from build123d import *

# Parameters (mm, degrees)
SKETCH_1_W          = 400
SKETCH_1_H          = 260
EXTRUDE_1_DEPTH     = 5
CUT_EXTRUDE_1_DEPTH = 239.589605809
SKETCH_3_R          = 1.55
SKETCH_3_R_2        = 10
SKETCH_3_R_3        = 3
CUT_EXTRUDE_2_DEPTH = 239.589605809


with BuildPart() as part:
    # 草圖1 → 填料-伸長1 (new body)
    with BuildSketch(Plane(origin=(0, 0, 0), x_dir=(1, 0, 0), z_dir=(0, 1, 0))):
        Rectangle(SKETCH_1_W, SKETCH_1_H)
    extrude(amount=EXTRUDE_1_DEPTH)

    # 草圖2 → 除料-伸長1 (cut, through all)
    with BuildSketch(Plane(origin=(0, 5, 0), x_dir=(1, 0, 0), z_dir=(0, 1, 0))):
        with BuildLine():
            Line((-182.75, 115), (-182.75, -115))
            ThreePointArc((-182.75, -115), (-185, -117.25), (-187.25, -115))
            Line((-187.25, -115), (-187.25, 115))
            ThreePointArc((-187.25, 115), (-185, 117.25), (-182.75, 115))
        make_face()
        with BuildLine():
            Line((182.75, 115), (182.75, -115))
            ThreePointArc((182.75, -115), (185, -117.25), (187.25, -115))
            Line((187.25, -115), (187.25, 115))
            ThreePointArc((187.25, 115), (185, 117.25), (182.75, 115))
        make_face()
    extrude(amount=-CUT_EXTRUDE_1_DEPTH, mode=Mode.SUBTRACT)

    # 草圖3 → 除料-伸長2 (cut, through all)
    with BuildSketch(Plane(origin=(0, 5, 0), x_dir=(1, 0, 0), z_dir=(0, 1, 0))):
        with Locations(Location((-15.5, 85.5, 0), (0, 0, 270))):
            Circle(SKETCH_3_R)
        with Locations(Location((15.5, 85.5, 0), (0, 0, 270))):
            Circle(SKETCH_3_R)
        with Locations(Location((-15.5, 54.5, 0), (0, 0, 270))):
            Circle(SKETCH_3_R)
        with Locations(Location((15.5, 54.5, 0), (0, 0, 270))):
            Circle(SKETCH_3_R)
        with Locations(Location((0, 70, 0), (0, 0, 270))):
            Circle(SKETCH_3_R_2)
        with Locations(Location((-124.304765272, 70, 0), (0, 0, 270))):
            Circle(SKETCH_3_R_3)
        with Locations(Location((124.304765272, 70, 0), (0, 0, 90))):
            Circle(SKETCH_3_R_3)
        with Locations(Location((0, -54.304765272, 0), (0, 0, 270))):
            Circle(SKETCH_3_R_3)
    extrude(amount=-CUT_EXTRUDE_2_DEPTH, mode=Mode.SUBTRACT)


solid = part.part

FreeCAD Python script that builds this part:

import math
import FreeCAD as App
import Part
import Sketcher

doc = App.newDocument("Part")
body = doc.addObject("PartDesign::Body", "Body")

sketch1 = doc.addObject("Sketcher::SketchObject", "Sketch")
body.addObject(sketch1)
sketch1.AttachmentSupport = (doc.XZ_Plane, [""])
sketch1.MapMode = "FlatFace"
sketch1.addGeometry([
    Part.LineSegment(App.Vector(-200, -130, 0), App.Vector(-200, 130, 0)),
    Part.LineSegment(App.Vector(-200, 130, 0), App.Vector(200, 130, 0)),
    Part.LineSegment(App.Vector(200, 130, 0), App.Vector(200, -130, 0)),
    Part.LineSegment(App.Vector(200, -130, 0), App.Vector(-200, -130, 0)),
], False)
sketch1.addConstraint([
    Sketcher.Constraint("Coincident", 0, 2, 1, 1),
    Sketcher.Constraint("Coincident", 1, 2, 2, 1),
    Sketcher.Constraint("Coincident", 2, 2, 3, 1),
    Sketcher.Constraint("Coincident", 3, 2, 0, 1),
    Sketcher.Constraint("Vertical", 0),
    Sketcher.Constraint("Horizontal", 1),
    Sketcher.Constraint("Vertical", 2),
    Sketcher.Constraint("Horizontal", 3),
    Sketcher.Constraint("Symmetric", 0, 2, 2, 2, -1, 1),
    Sketcher.Constraint("DistanceX", 1, 1, 1, 2, 400.0),
    Sketcher.Constraint("DistanceY", 0, 1, 0, 2, 260.0),
])
pad1 = doc.addObject("PartDesign::Pad", "Pad")
body.addObject(pad1)
pad1.Profile = sketch1
pad1.Length = 5
pad1.Reversed = True

sketch2 = doc.addObject("Sketcher::SketchObject", "Sketch001")
body.addObject(sketch2)
sketch2.AttachmentSupport = (doc.XZ_Plane, [""])
sketch2.MapMode = "FlatFace"
sketch2.AttachmentOffset = App.Placement(App.Vector(0, 0, -5), App.Rotation())
sketch2.addGeometry([
    Part.LineSegment(App.Vector(-182.8, 115, 0), App.Vector(-182.8, -115, 0)),
    Part.ArcOfCircle(Part.Circle(App.Vector(-185, -115, 0), App.Vector(0, 0, 1), 2.2), math.radians(180), math.radians(360)),
    Part.LineSegment(App.Vector(-187.2, -115, 0), App.Vector(-187.2, 115, 0)),
    Part.ArcOfCircle(Part.Circle(App.Vector(-185, 115, 0), App.Vector(0, 0, 1), 2.2), math.radians(0), math.radians(180)),
    Part.LineSegment(App.Vector(182.8, -115, 0), App.Vector(182.8, 115, 0)),
    Part.ArcOfCircle(Part.Circle(App.Vector(185, 115, 0), App.Vector(0, 0, 1), 2.2), math.radians(0), math.radians(180)),
    Part.LineSegment(App.Vector(187.2, 115, 0), App.Vector(187.2, -115, 0)),
    Part.ArcOfCircle(Part.Circle(App.Vector(185, -115, 0), App.Vector(0, 0, 1), 2.2), math.radians(180), math.radians(360)),
], False)
sketch2.addConstraint([
    Sketcher.Constraint("Tangent", 0, 2, 1, 2),
    Sketcher.Constraint("Tangent", 1, 1, 2, 1),
    Sketcher.Constraint("Tangent", 2, 2, 3, 2),
    Sketcher.Constraint("Tangent", 3, 1, 0, 1),
    Sketcher.Constraint("Tangent", 4, 2, 5, 2),
    Sketcher.Constraint("Tangent", 5, 1, 6, 1),
    Sketcher.Constraint("Tangent", 6, 2, 7, 2),
    Sketcher.Constraint("Tangent", 7, 1, 4, 1),
    Sketcher.Constraint("Vertical", 0),
    Sketcher.Constraint("Vertical", 2),
    Sketcher.Constraint("Vertical", 4),
    Sketcher.Constraint("Vertical", 6),
    Sketcher.Constraint("Equal", 3, 5),
    Sketcher.Constraint("Symmetric", 1, 3, 5, 3, -1, 1),
    Sketcher.Constraint("Horizontal", 3, 3, 5, 3),
    Sketcher.Constraint("Horizontal", 1, 3, 7, 3),
    Sketcher.Constraint("DistanceY", 0, 2, 0, 1, 230.0),
    Sketcher.Constraint("Radius", 1, 2.25),
    Sketcher.Constraint("DistanceX", 1, 3, -1, 1, 185.0),
])
pocket1 = doc.addObject("PartDesign::Pocket", "Pocket")
body.addObject(pocket1)
pocket1.Profile = sketch2
pocket1.Type = "ThroughAll"
pocket1.Reversed = True

sketch3 = doc.addObject("Sketcher::SketchObject", "Sketch002")
body.addObject(sketch3)
sketch3.AttachmentSupport = (doc.XZ_Plane, [""])
sketch3.MapMode = "FlatFace"
sketch3.AttachmentOffset = App.Placement(App.Vector(0, 0, -5), App.Rotation())
sketch3.addGeometry([
    Part.Circle(App.Vector(-15.5, -85.5, 0), App.Vector(0, 0, 1), 1.6),
    Part.Circle(App.Vector(15.5, -85.5, 0), App.Vector(0, 0, 1), 1.6),
    Part.Circle(App.Vector(-15.5, -54.5, 0), App.Vector(0, 0, 1), 1.6),
    Part.Circle(App.Vector(15.5, -54.5, 0), App.Vector(0, 0, 1), 1.6),
    Part.Circle(App.Vector(0, -70, 0), App.Vector(0, 0, 1), 10),
    Part.Circle(App.Vector(-124.3, -70, 0), App.Vector(0, 0, 1), 3),
    Part.Circle(App.Vector(124.3, -70, 0), App.Vector(0, 0, 1), 3),
    Part.Circle(App.Vector(0, 54.3, 0), App.Vector(0, 0, 1), 3),
], False)
sketch3.addConstraint([
    Sketcher.Constraint("Equal", 0, 1),
    Sketcher.Constraint("Equal", 1, 2),
    Sketcher.Constraint("Equal", 2, 3),
    Sketcher.Constraint("Equal", 5, 6),
    Sketcher.Constraint("Equal", 6, 7),
    Sketcher.Constraint("Symmetric", 0, 3, 1, 3, -2),
    Sketcher.Constraint("Symmetric", 2, 3, 3, 3, -2),
    Sketcher.Constraint("Symmetric", 5, 3, 6, 3, -2),
    Sketcher.Constraint("PointOnObject", 4, 3, -2),
    Sketcher.Constraint("PointOnObject", 7, 3, -2),
    Sketcher.Constraint("Horizontal", 4, 3, 5, 3),
    Sketcher.Constraint("Vertical", 0, 3, 2, 3),
    Sketcher.Constraint("Diameter", 4, 20.0),
    Sketcher.Constraint("Diameter", 5, 6.0),
    Sketcher.Constraint("Diameter", 0, 3.1),
    Sketcher.Constraint("DistanceY", 4, 3, -1, 1, 70.0),
    Sketcher.Constraint("DistanceX", 0, 3, 1, 3, 31.0),
    Sketcher.Constraint("DistanceY", 0, 3, 2, 3, 31.0),
    Sketcher.Constraint("DistanceY", 0, 3, -1, 1, 85.5),
    Sketcher.Constraint("DistanceX", 5, 3, -1, 1, 124.304765),
    Sketcher.Constraint("DistanceY", -1, 1, 7, 3, 54.304765),
])
pocket2 = doc.addObject("PartDesign::Pocket", "Pocket001")
body.addObject(pocket2)
pocket2.Profile = sketch3
pocket2.Type = "ThroughAll"
pocket2.Reversed = True

doc.recompute()
